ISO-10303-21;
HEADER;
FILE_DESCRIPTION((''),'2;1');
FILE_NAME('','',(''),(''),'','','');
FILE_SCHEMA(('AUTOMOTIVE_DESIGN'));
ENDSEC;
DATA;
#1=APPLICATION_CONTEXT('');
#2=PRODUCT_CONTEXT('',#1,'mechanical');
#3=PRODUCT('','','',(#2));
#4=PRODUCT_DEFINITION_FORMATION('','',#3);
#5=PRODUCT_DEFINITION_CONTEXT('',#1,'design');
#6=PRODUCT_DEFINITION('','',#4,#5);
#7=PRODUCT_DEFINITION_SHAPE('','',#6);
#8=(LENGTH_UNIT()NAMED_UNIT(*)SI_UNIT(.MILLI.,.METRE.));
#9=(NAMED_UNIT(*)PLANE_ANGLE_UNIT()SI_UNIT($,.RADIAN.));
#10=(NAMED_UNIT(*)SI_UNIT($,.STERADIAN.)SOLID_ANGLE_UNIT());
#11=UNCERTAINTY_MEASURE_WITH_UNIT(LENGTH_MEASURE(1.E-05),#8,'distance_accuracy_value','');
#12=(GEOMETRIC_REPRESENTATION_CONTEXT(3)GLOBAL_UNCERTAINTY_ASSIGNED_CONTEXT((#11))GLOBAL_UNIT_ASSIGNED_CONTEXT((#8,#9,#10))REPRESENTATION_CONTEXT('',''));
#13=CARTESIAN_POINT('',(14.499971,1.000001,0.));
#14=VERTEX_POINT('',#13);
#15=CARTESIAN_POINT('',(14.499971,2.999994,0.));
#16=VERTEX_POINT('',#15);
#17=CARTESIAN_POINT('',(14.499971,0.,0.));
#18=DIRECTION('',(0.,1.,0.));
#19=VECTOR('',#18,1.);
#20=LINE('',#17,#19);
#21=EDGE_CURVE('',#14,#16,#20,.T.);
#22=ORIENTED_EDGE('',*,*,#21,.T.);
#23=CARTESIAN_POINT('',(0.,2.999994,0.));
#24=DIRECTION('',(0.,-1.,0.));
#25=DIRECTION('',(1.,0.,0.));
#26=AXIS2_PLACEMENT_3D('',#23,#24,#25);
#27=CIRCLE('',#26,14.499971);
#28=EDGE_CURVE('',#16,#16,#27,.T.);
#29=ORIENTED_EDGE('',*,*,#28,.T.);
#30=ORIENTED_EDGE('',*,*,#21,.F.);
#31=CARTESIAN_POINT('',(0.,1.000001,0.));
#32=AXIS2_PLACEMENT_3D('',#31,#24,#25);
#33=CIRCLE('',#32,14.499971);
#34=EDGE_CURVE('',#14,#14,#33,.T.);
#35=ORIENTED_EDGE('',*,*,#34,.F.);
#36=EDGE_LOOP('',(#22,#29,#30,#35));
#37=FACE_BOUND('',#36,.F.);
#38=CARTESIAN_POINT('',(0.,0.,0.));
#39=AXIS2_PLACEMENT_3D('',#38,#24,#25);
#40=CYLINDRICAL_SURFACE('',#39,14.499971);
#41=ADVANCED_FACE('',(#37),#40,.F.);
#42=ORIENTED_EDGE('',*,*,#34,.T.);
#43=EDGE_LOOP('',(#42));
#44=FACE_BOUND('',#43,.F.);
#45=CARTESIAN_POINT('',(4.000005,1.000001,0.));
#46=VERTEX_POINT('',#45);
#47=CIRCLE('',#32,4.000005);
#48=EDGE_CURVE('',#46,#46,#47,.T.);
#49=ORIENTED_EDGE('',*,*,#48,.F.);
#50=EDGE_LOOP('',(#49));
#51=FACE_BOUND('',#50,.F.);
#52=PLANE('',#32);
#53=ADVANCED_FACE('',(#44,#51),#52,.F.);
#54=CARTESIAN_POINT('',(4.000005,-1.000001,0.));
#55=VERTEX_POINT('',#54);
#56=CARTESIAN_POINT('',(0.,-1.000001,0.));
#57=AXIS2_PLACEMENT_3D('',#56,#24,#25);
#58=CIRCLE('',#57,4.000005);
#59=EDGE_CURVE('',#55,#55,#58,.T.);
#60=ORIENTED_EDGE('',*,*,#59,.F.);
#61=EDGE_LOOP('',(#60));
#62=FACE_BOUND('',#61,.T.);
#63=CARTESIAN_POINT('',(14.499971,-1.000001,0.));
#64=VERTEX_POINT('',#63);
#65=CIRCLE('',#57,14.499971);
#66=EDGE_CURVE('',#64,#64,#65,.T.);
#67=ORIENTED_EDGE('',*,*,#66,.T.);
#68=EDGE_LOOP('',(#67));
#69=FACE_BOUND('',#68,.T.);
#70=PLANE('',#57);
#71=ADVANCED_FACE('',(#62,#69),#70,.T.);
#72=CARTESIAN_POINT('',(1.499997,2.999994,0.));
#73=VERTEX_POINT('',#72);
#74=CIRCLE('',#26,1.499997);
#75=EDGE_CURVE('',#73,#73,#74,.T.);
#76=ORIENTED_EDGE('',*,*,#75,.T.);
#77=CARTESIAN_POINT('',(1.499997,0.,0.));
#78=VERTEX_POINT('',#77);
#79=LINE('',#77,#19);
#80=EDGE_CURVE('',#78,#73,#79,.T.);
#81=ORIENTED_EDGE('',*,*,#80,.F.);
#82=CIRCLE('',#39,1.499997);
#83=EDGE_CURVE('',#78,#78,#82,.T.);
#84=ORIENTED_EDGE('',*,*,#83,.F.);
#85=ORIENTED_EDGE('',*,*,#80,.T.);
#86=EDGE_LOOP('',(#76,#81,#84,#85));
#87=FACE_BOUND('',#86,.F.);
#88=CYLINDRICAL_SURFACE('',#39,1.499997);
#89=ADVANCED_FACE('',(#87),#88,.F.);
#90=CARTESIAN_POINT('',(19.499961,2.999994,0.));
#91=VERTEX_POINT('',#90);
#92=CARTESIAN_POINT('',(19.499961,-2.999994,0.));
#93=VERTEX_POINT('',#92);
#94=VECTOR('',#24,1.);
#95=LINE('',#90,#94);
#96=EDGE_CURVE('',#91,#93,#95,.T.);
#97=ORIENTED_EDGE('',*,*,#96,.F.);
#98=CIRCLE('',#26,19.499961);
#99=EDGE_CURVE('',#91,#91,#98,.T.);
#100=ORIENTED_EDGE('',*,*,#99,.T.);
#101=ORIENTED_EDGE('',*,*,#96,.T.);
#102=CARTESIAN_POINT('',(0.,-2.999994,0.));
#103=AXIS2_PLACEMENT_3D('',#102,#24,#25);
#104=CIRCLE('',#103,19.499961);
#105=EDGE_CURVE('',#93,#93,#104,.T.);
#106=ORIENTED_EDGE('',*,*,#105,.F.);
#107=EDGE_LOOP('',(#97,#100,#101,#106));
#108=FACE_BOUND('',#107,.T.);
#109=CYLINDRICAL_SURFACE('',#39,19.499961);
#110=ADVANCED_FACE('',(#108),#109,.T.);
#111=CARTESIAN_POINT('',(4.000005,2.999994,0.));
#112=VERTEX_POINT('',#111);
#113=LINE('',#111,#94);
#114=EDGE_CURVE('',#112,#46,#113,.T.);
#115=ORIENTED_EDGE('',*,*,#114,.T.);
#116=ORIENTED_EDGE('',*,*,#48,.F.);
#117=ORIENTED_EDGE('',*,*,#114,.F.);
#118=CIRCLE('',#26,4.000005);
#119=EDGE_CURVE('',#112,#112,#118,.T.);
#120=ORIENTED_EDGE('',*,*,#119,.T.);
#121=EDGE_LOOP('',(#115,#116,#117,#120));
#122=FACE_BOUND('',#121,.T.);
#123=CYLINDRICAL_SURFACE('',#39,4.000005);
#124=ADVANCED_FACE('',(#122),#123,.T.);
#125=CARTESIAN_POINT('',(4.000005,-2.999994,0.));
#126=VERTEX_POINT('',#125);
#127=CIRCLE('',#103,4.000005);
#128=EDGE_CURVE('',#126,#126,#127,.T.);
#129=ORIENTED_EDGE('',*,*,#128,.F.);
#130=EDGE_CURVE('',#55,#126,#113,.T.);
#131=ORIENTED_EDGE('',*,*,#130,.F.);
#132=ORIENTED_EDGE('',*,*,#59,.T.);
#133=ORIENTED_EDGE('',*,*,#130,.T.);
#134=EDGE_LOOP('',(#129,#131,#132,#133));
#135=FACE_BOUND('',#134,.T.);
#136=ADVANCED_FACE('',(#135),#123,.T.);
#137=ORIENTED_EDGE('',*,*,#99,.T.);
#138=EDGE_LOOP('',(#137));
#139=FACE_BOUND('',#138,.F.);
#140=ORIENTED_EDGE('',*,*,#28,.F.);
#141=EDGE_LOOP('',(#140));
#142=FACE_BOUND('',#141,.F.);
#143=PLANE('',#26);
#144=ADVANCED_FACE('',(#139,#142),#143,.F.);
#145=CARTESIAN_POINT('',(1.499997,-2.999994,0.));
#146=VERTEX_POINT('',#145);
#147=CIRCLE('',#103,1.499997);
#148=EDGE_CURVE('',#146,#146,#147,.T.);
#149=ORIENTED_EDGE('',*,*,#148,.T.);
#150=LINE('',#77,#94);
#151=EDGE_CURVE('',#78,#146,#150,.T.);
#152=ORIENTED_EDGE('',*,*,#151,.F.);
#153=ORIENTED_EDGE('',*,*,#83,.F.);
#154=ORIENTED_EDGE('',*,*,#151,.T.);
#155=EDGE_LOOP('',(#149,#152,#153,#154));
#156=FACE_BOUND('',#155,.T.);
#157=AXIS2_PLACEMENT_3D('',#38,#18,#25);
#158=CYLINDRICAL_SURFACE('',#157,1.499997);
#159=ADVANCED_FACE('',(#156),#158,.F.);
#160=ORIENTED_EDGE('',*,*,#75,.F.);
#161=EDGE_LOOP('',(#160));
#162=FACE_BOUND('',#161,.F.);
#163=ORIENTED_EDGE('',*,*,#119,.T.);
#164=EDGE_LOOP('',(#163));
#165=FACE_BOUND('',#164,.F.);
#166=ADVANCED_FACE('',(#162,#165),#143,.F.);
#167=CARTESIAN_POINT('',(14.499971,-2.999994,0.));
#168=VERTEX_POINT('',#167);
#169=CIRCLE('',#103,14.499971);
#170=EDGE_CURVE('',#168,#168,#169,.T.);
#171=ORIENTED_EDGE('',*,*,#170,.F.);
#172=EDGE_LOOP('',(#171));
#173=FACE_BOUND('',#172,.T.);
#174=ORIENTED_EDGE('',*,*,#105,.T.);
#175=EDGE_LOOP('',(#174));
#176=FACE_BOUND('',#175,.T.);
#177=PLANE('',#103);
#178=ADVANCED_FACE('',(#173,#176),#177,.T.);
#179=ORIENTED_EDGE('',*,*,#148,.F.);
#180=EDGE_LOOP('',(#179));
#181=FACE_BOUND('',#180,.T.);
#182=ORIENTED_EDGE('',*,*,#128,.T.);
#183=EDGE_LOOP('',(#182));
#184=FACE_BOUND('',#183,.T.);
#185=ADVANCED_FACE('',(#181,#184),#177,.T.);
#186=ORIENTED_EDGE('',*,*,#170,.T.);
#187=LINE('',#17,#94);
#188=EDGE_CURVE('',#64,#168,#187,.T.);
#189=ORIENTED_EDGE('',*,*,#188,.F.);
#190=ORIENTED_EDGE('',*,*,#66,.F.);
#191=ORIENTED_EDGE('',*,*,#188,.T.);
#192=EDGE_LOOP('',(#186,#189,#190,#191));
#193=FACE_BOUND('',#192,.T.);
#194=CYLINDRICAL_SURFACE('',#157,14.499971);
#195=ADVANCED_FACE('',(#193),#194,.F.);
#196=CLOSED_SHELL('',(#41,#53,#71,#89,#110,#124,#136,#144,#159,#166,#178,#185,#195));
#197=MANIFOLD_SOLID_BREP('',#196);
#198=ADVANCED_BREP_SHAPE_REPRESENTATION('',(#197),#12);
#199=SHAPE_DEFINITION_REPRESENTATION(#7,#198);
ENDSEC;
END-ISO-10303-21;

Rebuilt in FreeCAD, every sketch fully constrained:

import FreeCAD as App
import Part
import Sketcher

V = App.Vector

doc = App.newDocument("Part")
body = doc.addObject("PartDesign::Body", "Body")

# Sketch on XZ plane
sketch1 = body.newObject("Sketcher::SketchObject", "Sketch")
sketch1.AttachmentSupport = (doc.getObject("XZ_Plane"), [""])
sketch1.MapMode = "FlatFace"
sketch1.addGeometry([
    Part.Circle(V(0, 0, 0), V(0, 0, 1), 4.000005),
    Part.Circle(V(0, 0, 0), V(0, 0, 1), 1.499997),
], False)
sketch1.addConstraint([
    Sketcher.Constraint("Coincident", 0, 3, -1, 1),
    Sketcher.Constraint("Coincident", 1, 3, -1, 1),
    Sketcher.Constraint("Diameter", 0, 8.00001),
    Sketcher.Constraint("Diameter", 1, 2.999994),
])
pad1 = body.newObject("PartDesign::Pad", "Pad")
pad1.Profile = sketch1
pad1.Length = 2.999994

# Sketch on XZ plane
sketch2 = body.newObject("Sketcher::SketchObject", "Sketch001")
sketch2.AttachmentSupport = (doc.getObject("XZ_Plane"), [""])
sketch2.MapMode = "FlatFace"
sketch2.addGeometry([
    Part.Circle(V(0, 0, 0), V(0, 0, 1), 4.000005),
    Part.Circle(V(0, 0, 0), V(0, 0, 1), 1.499997),
], False)
sketch2.addConstraint([
    Sketcher.Constraint("Coincident", 0, 3, -1, 1),
    Sketcher.Constraint("Coincident", 1, 3, -1, 1),
    Sketcher.Constraint("Diameter", 0, 8.00001),
    Sketcher.Constraint("Diameter", 1, 2.999994),
])
pad2 = body.newObject("PartDesign::Pad", "Pad001")
pad2.Profile = sketch2
pad2.Length = 2.999994
pad2.Reversed = True

# Sketch on XZ plane
sketch3 = body.newObject("Sketcher::SketchObject", "Sketch002")
sketch3.AttachmentSupport = (doc.getObject("XZ_Plane"), [""])
sketch3.MapMode = "FlatFace"
sketch3.addGeometry([
    Part.Circle(V(0, 0, 0), V(0, 0, 1), 14.499971),
    Part.Circle(V(0, 0, 0), V(0, 0, 1), 4.000005),
], False)
sketch3.addConstraint([
    Sketcher.Constraint("Coincident", 0, 3, -1, 1),
    Sketcher.Constraint("Coincident", 1, 3, -1, 1),
    Sketcher.Constraint("Diameter", 1, 8.00001),
    Sketcher.Constraint("Diameter", 0, 28.999942),
])
pad3 = body.newObject("PartDesign::Pad", "Pad002")
pad3.Profile = sketch3
pad3.Length = 1.000001

# Sketch on XZ plane
sketch4 = body.newObject("Sketcher::SketchObject", "Sketch003")
sketch4.AttachmentSupport = (doc.getObject("XZ_Plane"), [""])
sketch4.MapMode = "FlatFace"
sketch4.addGeometry([
    Part.Circle(V(0, 0, 0), V(0, 0, 1), 14.499971),
    Part.Circle(V(0, 0, 0), V(0, 0, 1), 4.000005),
], False)
sketch4.addConstraint([
    Sketcher.Constraint("Coincident", 0, 3, -1, 1),
    Sketcher.Constraint("Coincident", 1, 3, -1, 1),
    Sketcher.Constraint("Diameter", 1, 8.00001),
    Sketcher.Constraint("Diameter", 0, 28.999942),
])
pad4 = body.newObject("PartDesign::Pad", "Pad003")
pad4.Profile = sketch4
pad4.Length = 1.000001
pad4.Reversed = True

# Sketch on XZ plane
sketch5 = body.newObject("Sketcher::SketchObject", "Sketch004")
sketch5.AttachmentSupport = (doc.getObject("XZ_Plane"), [""])
sketch5.MapMode = "FlatFace"
sketch5.addGeometry([
    Part.Circle(V(0, 0, 0), V(0, 0, 1), 19.499961),
    Part.Circle(V(0, 0, 0), V(0, 0, 1), 14.499971),
], False)
sketch5.addConstraint([
    Sketcher.Constraint("Coincident", 0, 3, -1, 1),
    Sketcher.Constraint("Coincident", 1, 3, -1, 1),
    Sketcher.Constraint("Diameter", 0, 38.999922),
    Sketcher.Constraint("Diameter", 1, 28.999942),
])
pad5 = body.newObject("PartDesign::Pad", "Pad004")
pad5.Profile = sketch5
pad5.Length = 2.999994

# Sketch on XZ plane
sketch6 = body.newObject("Sketcher::SketchObject", "Sketch005")
sketch6.AttachmentSupport = (doc.getObject("XZ_Plane"), [""])
sketch6.MapMode = "FlatFace"
sketch6.addGeometry([
    Part.Circle(V(0, 0, 0), V(0, 0, 1), 19.499961),
    Part.Circle(V(0, 0, 0), V(0, 0, 1), 14.499971),
], False)
sketch6.addConstraint([
    Sketcher.Constraint("Coincident", 0, 3, -1, 1),
    Sketcher.Constraint("Coincident", 1, 3, -1, 1),
    Sketcher.Constraint("Diameter", 0, 38.999922),
    Sketcher.Constraint("Diameter", 1, 28.999942),
])
pad6 = body.newObject("PartDesign::Pad", "Pad005")
pad6.Profile = sketch6
pad6.Length = 2.999994
pad6.Reversed = True

doc.recompute()
